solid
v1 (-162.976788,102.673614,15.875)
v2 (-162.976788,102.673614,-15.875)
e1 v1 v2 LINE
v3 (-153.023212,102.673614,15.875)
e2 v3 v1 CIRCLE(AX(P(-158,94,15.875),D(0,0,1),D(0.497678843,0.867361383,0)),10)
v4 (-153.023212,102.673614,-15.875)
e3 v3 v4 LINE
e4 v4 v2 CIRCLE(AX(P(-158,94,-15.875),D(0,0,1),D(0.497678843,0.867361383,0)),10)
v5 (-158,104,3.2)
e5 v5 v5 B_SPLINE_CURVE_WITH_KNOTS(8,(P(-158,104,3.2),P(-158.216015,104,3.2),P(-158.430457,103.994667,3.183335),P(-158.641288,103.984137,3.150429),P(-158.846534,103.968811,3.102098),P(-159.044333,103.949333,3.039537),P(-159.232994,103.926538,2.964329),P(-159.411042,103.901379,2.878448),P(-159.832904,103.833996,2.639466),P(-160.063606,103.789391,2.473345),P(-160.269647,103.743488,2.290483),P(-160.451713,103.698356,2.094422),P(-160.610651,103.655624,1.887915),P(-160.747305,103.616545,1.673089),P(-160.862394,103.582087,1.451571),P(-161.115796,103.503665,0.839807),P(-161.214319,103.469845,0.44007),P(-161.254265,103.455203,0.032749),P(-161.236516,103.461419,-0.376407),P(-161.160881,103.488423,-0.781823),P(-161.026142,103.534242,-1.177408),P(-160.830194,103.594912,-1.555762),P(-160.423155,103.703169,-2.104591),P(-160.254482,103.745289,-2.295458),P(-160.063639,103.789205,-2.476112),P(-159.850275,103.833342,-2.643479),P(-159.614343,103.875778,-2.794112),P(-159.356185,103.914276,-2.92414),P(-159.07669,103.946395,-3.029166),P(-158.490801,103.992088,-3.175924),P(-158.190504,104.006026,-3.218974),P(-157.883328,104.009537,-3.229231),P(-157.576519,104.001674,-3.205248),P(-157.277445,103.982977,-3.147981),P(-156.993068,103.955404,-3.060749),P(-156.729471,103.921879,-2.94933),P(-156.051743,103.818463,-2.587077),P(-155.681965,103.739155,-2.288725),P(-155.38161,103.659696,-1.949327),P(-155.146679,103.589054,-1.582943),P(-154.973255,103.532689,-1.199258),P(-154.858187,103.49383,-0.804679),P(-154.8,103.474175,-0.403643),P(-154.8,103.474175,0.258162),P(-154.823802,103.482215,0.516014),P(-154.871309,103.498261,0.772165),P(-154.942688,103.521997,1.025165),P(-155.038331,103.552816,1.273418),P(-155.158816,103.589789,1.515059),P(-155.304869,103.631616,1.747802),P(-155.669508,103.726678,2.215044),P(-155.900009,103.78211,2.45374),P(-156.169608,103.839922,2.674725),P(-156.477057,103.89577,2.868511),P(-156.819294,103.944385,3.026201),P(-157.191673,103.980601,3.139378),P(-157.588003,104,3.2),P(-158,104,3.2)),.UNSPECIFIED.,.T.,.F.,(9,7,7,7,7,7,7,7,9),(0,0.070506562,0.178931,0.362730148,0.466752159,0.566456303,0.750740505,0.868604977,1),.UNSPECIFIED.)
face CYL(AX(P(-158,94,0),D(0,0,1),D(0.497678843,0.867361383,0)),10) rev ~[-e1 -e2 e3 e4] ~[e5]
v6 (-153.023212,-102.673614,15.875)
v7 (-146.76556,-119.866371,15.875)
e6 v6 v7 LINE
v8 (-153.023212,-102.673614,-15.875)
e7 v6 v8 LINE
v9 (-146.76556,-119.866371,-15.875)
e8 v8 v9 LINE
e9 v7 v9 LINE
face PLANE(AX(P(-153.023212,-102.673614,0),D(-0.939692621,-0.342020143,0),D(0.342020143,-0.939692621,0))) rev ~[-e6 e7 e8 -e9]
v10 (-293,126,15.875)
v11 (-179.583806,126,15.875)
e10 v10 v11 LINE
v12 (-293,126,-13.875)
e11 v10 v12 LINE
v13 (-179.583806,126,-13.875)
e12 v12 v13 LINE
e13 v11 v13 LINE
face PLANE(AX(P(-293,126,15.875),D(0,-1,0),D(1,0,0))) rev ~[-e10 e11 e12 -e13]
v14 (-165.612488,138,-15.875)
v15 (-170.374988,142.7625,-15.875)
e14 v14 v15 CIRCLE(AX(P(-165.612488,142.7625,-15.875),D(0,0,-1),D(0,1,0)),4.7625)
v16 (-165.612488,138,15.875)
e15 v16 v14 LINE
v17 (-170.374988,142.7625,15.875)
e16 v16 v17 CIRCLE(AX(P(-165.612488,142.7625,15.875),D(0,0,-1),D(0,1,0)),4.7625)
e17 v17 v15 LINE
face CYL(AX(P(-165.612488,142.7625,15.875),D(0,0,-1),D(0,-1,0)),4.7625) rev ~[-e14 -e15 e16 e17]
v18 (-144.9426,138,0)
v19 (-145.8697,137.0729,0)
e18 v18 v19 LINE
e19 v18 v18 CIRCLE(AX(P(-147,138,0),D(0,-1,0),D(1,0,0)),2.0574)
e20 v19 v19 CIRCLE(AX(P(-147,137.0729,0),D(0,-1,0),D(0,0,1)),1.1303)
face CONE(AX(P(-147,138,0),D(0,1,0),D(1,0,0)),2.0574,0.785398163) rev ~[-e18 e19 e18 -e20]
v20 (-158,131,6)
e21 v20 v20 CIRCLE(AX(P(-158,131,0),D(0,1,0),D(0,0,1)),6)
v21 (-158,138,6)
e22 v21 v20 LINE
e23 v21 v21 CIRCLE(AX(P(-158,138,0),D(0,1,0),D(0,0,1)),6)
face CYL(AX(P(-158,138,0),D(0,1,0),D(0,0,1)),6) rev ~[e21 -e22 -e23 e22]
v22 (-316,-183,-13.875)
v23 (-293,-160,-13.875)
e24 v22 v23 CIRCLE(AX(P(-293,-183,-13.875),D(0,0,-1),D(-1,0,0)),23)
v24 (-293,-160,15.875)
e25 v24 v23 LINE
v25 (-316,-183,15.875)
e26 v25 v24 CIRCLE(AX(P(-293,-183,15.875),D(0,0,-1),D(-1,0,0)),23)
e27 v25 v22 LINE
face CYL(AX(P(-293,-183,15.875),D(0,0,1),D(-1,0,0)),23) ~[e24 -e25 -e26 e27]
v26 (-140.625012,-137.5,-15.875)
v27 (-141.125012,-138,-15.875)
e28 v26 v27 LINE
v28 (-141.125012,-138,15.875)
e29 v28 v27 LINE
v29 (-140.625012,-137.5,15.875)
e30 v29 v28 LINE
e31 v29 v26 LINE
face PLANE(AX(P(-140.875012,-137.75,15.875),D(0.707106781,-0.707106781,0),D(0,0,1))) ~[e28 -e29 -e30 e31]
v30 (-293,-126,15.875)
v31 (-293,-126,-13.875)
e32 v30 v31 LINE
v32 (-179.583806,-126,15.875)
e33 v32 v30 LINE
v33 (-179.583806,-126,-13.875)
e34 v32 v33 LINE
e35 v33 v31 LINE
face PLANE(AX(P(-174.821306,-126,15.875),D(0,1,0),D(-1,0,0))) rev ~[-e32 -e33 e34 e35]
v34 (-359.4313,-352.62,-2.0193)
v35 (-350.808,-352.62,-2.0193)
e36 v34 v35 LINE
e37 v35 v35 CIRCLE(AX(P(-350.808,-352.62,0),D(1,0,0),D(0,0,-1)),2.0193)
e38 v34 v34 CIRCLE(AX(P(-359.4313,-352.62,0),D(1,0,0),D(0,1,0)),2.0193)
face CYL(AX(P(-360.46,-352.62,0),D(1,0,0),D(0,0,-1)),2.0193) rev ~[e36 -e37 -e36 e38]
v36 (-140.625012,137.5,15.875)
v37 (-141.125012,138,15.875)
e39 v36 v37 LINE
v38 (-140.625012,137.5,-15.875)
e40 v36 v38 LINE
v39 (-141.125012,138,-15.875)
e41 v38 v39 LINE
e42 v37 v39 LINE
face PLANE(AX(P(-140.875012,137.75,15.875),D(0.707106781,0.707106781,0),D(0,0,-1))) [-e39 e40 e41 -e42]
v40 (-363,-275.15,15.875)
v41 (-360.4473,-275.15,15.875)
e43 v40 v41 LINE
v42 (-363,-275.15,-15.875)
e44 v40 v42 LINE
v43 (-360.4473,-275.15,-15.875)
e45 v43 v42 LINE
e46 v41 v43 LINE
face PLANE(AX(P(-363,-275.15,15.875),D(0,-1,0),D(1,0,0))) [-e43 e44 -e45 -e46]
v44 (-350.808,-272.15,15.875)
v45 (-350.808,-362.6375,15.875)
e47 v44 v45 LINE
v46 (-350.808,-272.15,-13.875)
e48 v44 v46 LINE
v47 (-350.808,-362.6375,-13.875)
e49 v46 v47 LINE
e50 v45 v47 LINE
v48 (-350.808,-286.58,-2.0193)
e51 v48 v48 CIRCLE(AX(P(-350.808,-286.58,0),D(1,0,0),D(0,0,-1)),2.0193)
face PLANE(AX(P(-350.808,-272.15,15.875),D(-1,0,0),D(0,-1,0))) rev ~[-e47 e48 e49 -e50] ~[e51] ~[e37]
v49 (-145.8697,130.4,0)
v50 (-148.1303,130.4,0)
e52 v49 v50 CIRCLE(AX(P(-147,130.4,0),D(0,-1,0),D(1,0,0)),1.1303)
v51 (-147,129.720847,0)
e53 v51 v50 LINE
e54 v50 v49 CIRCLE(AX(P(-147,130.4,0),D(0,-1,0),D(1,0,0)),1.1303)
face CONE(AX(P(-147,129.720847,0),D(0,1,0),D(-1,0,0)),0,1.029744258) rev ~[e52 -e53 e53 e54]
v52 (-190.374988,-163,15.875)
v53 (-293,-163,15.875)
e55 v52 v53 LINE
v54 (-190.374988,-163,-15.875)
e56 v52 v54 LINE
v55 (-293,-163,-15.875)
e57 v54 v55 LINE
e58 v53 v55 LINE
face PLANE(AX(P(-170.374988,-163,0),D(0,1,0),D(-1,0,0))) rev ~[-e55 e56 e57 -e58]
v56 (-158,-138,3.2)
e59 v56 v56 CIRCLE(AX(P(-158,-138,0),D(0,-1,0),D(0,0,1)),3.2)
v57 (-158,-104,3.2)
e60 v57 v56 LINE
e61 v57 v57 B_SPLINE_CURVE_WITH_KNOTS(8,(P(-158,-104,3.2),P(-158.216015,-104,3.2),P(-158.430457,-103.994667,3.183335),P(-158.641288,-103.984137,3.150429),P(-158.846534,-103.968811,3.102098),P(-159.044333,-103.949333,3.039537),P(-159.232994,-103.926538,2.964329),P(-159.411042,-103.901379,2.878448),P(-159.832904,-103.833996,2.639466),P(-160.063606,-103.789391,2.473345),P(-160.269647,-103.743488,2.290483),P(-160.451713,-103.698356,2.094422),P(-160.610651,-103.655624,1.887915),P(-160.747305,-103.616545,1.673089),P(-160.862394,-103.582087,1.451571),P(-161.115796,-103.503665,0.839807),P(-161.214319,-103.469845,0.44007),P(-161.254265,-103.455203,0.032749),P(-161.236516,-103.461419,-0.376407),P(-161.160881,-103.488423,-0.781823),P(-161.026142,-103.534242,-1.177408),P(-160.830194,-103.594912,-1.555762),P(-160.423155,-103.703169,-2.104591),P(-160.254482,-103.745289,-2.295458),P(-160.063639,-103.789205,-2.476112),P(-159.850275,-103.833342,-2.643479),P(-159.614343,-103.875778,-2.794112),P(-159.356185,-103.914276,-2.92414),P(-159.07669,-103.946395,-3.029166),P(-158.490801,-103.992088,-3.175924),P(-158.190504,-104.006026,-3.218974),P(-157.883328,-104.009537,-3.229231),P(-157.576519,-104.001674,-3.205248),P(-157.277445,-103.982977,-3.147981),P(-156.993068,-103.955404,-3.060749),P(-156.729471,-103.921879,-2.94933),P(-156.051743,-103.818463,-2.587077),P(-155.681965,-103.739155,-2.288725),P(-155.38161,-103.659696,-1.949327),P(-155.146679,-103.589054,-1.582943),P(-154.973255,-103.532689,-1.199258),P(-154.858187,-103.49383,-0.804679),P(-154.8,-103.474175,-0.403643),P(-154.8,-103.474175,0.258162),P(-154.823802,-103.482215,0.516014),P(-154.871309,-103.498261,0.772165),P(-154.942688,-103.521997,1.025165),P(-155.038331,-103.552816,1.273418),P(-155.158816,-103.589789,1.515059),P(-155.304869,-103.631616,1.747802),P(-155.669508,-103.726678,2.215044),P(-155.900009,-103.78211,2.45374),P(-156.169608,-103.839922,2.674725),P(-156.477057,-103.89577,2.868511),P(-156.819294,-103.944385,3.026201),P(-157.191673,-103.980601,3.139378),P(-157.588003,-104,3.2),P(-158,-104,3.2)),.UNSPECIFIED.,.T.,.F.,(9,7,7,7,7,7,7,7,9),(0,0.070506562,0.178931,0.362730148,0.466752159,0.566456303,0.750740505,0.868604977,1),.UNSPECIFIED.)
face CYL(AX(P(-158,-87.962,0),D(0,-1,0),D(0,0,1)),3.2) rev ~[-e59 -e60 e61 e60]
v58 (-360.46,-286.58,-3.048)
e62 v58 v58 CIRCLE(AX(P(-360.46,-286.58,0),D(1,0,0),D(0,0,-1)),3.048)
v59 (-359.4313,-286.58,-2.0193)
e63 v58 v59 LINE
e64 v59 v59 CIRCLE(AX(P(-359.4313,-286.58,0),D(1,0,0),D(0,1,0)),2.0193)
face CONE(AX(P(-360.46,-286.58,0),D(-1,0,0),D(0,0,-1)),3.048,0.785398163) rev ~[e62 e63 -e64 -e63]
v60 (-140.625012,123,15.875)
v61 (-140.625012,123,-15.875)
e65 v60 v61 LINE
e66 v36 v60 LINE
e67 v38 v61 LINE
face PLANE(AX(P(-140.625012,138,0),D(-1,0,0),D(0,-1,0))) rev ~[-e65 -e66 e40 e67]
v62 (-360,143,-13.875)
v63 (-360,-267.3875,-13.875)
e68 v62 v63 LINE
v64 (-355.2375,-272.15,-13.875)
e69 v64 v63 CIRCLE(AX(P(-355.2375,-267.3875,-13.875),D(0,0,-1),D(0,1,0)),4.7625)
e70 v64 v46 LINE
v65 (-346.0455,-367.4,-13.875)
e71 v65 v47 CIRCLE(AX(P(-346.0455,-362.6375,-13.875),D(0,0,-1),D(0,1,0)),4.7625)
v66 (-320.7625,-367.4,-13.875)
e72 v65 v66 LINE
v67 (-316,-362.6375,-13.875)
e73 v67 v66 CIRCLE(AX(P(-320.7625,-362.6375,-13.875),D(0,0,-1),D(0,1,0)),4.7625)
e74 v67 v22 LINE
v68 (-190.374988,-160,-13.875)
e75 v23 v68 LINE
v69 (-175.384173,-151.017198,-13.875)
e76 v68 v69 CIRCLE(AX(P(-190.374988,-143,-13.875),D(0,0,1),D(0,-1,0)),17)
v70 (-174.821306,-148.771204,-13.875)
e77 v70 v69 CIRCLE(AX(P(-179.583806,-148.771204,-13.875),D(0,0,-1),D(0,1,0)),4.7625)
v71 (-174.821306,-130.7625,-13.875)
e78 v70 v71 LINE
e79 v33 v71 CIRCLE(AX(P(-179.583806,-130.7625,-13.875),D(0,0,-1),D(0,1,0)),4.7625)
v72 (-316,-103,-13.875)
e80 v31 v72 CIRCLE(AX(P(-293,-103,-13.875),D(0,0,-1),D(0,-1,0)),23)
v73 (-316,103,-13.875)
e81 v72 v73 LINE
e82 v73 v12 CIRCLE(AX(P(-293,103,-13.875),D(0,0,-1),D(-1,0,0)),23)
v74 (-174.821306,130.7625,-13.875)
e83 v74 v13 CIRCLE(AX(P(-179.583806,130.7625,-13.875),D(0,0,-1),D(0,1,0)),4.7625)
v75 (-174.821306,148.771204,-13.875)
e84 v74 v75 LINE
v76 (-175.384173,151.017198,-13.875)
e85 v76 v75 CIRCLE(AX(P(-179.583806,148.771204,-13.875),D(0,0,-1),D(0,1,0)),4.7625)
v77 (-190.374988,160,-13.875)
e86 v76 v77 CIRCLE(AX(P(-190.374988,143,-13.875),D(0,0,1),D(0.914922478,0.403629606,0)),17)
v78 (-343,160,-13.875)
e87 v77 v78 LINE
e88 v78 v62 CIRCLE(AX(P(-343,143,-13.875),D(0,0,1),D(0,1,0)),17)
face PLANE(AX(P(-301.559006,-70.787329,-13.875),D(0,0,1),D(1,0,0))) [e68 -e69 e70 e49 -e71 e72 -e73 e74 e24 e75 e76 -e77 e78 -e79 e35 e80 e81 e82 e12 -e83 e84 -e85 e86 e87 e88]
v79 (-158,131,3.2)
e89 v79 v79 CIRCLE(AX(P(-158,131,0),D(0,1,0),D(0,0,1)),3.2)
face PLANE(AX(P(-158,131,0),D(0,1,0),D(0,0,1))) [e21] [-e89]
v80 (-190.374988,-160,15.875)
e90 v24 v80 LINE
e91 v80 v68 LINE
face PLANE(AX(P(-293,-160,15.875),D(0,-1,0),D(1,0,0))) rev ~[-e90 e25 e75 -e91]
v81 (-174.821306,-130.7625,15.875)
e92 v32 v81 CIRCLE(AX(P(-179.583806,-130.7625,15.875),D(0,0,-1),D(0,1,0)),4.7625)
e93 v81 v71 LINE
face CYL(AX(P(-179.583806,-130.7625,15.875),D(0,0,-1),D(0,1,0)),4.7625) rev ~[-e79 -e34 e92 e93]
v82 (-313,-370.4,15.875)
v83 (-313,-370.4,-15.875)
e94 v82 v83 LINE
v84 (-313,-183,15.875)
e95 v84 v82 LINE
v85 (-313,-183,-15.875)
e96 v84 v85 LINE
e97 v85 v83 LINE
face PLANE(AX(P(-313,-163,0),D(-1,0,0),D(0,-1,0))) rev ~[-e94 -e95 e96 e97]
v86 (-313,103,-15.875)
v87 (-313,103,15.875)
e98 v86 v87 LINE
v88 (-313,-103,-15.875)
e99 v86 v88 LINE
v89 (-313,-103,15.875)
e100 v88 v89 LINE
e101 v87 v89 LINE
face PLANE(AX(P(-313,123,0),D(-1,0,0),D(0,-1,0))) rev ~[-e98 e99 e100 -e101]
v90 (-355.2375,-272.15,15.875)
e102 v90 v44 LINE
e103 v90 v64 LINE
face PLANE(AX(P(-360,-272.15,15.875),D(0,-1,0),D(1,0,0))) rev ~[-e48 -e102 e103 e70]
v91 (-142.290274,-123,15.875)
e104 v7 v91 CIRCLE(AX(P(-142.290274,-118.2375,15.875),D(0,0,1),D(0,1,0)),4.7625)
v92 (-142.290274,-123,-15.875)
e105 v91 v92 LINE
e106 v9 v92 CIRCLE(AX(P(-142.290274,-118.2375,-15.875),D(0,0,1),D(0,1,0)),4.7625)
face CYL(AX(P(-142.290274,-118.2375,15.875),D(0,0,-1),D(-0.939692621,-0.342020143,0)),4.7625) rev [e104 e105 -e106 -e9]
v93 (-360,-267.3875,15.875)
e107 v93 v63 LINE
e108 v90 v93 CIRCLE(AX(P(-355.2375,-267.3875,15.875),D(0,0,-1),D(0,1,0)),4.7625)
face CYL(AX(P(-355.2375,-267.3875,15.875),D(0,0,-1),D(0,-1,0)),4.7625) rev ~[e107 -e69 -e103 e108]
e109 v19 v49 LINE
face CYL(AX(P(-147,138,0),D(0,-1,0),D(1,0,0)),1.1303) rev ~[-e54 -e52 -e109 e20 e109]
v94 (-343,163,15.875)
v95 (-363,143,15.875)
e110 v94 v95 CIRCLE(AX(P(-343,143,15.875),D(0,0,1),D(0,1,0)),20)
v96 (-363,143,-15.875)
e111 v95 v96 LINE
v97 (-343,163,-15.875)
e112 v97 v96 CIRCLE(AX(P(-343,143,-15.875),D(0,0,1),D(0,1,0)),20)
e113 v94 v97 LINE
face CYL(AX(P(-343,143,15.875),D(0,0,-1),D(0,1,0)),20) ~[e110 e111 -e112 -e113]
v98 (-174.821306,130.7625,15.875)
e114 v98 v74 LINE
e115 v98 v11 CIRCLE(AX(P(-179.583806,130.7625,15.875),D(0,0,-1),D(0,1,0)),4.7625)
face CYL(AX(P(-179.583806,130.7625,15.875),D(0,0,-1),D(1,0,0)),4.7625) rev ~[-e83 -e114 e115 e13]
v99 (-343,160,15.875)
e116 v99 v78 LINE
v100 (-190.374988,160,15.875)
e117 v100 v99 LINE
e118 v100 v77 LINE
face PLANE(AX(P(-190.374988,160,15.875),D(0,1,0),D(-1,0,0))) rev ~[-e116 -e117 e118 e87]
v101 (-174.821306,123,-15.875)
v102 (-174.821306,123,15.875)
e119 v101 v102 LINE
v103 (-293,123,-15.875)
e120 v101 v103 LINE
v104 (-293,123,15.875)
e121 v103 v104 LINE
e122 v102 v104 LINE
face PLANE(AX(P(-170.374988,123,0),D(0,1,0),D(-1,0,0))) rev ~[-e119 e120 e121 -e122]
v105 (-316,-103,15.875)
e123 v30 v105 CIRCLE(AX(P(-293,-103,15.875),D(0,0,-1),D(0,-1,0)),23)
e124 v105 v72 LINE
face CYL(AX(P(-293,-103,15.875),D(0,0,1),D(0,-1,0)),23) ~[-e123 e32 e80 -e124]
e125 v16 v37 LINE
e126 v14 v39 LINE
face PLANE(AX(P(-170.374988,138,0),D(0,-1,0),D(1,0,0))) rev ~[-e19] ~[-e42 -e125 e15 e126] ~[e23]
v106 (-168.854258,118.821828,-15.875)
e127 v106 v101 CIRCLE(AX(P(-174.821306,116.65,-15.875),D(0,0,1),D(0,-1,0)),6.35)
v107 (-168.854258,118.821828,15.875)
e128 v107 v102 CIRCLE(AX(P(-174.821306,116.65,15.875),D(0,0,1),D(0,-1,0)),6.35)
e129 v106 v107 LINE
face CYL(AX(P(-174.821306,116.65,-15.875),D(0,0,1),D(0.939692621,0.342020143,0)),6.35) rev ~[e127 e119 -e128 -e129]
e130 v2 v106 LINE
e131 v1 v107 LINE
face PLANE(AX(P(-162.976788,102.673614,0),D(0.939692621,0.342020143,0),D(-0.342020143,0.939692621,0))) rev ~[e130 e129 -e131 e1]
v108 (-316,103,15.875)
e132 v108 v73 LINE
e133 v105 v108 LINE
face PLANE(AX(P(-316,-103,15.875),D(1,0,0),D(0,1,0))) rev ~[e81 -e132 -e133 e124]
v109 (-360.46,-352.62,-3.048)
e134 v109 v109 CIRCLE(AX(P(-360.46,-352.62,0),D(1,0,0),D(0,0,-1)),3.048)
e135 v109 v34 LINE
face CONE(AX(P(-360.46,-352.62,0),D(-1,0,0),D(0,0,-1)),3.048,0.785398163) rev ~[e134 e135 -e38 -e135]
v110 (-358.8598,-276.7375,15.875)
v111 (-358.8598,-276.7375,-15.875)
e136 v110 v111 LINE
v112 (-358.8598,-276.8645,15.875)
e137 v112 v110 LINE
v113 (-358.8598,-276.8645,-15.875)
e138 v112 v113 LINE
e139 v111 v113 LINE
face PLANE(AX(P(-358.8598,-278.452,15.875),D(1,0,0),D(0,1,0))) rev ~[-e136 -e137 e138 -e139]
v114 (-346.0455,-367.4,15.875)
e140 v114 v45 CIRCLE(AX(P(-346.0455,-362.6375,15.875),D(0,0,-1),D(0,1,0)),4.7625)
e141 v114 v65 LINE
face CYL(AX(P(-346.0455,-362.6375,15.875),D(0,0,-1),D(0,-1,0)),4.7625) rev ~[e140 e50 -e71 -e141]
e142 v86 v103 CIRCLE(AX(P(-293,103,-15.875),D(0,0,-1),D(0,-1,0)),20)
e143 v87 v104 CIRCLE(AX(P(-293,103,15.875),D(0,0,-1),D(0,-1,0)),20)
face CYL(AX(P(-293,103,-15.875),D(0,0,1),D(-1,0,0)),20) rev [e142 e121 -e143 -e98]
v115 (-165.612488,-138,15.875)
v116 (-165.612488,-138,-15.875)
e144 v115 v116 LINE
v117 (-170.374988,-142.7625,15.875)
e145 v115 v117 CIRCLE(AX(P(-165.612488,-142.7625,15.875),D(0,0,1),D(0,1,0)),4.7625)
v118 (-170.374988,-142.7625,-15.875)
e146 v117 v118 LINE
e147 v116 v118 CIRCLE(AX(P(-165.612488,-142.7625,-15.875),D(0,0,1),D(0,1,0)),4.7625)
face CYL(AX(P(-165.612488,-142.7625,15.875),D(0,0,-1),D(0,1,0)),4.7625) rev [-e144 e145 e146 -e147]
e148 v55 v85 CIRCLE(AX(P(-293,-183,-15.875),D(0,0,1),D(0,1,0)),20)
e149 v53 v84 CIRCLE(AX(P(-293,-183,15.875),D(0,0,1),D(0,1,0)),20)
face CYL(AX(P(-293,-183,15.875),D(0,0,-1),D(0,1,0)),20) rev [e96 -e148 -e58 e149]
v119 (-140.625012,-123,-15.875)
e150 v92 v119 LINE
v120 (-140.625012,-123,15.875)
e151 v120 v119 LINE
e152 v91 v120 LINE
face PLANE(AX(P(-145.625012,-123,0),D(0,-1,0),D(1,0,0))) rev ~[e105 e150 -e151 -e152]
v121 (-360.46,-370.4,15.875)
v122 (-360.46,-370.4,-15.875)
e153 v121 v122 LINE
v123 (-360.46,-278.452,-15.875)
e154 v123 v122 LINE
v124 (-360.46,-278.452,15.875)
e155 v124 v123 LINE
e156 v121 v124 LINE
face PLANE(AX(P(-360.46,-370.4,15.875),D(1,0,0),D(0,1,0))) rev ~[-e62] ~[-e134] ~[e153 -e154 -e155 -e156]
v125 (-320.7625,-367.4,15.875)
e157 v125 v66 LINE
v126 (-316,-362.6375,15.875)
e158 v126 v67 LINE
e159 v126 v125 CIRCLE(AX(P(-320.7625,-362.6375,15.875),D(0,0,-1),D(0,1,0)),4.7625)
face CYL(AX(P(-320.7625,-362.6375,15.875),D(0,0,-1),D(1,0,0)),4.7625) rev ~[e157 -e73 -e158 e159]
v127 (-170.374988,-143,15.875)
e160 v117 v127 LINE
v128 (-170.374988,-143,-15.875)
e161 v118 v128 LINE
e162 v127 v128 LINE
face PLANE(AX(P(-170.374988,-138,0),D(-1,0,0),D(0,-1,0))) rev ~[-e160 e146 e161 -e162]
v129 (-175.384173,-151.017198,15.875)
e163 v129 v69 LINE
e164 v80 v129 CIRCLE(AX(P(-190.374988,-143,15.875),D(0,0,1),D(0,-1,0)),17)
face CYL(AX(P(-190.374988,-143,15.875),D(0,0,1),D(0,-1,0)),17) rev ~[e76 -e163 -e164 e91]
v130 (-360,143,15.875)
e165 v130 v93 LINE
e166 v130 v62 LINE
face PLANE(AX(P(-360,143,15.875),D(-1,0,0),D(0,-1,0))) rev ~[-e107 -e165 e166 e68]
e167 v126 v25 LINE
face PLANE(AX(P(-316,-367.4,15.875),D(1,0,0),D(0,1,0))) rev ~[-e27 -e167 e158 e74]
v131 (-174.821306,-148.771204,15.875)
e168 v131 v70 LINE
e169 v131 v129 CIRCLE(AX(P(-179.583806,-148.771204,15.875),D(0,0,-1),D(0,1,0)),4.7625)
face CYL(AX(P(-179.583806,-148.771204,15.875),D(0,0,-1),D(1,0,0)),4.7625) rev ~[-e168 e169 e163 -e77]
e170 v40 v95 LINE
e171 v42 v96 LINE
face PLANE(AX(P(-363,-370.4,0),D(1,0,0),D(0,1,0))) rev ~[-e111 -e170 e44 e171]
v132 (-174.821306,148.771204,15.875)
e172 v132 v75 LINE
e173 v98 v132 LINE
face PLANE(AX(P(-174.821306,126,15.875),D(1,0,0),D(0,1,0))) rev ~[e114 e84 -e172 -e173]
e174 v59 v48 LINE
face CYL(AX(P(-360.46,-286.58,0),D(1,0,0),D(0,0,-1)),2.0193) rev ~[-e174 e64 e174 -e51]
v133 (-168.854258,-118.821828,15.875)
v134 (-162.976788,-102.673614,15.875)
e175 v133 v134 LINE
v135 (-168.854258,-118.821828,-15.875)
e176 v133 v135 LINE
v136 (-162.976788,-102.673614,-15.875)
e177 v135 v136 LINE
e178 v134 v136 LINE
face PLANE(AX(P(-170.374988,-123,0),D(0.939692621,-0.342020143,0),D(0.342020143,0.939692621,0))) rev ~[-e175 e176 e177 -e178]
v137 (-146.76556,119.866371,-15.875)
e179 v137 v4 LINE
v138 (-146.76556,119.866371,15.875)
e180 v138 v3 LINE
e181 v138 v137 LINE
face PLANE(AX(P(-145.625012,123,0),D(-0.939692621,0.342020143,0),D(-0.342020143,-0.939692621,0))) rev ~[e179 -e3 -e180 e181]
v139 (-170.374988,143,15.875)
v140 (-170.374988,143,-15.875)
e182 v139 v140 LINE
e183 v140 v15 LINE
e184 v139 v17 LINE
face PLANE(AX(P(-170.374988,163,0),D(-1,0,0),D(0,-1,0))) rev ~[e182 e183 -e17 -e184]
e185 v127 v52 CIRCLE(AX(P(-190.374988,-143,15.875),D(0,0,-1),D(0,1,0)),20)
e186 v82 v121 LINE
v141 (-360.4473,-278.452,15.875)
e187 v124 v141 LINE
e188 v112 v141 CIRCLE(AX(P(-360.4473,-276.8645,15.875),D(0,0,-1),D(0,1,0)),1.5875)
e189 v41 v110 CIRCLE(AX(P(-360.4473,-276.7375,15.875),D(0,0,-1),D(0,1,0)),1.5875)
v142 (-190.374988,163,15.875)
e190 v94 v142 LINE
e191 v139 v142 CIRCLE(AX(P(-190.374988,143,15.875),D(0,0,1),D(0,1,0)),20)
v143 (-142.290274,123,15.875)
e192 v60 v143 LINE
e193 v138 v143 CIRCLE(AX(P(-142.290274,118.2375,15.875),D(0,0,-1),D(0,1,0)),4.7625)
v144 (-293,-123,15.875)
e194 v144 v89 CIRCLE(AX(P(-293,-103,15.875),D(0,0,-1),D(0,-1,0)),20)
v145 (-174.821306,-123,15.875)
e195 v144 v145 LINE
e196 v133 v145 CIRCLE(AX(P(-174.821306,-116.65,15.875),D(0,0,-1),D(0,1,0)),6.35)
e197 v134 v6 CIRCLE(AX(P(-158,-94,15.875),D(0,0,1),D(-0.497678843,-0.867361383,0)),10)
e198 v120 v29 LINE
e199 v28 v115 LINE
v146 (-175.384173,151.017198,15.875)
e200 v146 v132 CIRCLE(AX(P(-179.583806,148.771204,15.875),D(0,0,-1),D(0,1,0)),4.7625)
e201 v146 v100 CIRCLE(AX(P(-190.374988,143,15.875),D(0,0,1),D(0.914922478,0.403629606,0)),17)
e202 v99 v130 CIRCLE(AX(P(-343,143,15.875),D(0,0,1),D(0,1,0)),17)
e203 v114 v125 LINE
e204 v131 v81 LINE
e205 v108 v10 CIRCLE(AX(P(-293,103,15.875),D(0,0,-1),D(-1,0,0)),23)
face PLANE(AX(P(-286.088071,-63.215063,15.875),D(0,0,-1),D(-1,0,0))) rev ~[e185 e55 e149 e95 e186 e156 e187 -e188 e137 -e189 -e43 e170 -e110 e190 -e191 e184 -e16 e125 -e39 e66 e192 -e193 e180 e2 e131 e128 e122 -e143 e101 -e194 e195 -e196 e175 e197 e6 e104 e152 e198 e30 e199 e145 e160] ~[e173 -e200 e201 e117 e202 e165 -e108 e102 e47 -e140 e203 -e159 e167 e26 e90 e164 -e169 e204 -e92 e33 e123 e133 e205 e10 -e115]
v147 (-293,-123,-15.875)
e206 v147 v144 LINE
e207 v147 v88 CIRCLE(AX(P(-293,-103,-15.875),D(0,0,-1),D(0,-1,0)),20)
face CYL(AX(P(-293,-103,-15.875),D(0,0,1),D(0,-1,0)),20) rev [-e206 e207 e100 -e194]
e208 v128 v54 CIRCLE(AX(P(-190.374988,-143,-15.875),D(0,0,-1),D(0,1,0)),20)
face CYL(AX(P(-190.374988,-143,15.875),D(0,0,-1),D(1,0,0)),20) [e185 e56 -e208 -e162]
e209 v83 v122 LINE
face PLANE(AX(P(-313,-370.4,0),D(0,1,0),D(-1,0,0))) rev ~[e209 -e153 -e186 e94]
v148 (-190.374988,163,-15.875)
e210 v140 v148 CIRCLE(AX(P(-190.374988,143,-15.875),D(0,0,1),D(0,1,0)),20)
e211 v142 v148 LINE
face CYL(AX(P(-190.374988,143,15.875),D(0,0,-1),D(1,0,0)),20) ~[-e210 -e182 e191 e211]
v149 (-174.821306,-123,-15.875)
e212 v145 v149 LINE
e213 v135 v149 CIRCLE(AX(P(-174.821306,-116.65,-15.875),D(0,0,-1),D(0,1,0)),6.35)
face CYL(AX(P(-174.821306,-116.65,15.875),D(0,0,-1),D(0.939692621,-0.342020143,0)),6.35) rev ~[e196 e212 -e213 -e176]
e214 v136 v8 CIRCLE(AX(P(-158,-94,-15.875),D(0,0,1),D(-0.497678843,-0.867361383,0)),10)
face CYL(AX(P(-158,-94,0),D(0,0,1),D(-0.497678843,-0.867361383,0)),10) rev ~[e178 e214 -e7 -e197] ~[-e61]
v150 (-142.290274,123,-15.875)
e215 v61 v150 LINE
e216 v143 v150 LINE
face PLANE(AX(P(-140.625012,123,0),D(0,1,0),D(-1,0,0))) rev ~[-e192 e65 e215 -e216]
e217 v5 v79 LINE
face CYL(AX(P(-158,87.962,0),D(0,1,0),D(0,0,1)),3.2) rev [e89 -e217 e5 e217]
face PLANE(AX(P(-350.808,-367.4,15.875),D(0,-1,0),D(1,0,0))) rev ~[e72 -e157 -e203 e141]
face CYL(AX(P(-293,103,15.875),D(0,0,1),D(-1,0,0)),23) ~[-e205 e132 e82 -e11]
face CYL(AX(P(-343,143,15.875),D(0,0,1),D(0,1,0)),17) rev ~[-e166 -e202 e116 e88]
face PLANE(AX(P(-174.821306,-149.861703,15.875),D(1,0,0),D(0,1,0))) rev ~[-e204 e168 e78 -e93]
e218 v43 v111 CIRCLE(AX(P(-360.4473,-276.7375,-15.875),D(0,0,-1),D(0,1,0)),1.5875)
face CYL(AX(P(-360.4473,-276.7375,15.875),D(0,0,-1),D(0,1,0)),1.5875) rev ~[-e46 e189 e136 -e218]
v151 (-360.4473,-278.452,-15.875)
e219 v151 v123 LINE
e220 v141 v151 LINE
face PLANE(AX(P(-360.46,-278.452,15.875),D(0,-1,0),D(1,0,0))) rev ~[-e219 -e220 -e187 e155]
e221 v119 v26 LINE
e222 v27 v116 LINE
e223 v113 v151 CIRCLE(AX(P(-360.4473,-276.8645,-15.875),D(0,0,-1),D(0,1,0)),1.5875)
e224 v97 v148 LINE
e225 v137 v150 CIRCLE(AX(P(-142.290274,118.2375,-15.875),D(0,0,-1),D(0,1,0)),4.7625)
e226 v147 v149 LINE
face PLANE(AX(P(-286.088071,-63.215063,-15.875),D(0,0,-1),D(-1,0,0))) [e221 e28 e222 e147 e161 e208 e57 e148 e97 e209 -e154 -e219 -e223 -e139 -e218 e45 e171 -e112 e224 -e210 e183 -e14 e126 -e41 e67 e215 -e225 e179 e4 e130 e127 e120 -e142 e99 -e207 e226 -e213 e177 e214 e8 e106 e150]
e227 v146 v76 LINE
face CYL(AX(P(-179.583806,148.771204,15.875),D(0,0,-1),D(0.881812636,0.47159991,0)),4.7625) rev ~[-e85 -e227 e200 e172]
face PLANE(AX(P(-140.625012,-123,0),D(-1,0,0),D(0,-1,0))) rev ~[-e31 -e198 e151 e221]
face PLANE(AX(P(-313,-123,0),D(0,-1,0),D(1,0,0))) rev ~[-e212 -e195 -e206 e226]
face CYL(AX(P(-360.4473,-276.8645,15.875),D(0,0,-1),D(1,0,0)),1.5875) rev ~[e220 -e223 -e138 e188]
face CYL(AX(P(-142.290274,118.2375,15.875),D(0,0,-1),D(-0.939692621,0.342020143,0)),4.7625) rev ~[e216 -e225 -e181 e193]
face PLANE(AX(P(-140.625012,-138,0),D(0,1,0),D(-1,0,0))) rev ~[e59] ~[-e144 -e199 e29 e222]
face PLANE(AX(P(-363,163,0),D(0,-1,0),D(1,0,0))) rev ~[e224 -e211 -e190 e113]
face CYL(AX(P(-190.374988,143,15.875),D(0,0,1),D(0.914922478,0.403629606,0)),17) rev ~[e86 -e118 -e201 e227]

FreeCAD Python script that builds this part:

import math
import FreeCAD as App
import Part
import Sketcher

V = App.Vector
Q = App.Units.Quantity


def edges_at(feature, points):
    """Names of the edges that pass closest to the given points."""
    edges = feature.Shape.Edges
    near = lambda p: min(range(len(edges)), key=lambda i: edges[i].distToShape(Part.Vertex(*p))[0])
    return sorted({f"Edge{near(p) + 1}" for p in points})

doc = App.newDocument("Part")
params = doc.addObject("Spreadsheet::Sheet", "Params")
for row, (alias, value) in enumerate([
    ("sketch1_radius", "10 mm"),
    ("sketch1_width", "5 mm"),
    ("sketch1_width2", "50 mm"),
    ("sketch1_height", "246 mm"),
    ("sketch1_height2", "15 mm"),
    ("pad1_length", "31.75 mm"),
    ("sketch2_width", "2.54 mm"),
    ("sketch2_height", "95.25 mm"),
    ("fillet_radius", "1.5875 mm"),
    ("fillet2_radius", "6.35 mm"),
    ("fillet3_radius", "20 mm"),
    ("fillet4_radius", "4.7625 mm"),
    ("sketch4_height", "3.2 mm"),
    ("groove_angle", "360 deg"),
    ("sketch5_diameter", "12 mm"),
    ("pocket3_length", "7 mm"),
    ("hole_diameter", "2.2606 mm"),
    ("hole_depth", "7.6 mm"),
    ("hole_csink_diameter", "4.1148 mm"),
    ("chamfer_size", "0.5 mm"),
    ("hole2_diameter", "4.0386 mm"),
    ("hole2_depth", "12.03 mm"),
    ("hole2_csink_diameter", "6.096 mm"),
    ("sketch8_radius", "17 mm"),
    ("sketch8_radius2", "23 mm"),
    ("sketch8_height", "206 mm"),
    ("sketch8_height2", "184.4 mm"),
    ("sketch8_height3", "415.15 mm"),
    ("pocket4_length", "29.75 mm"),
    ("fillet5_radius", "4.7625 mm"),
], start=1):
    params.set(f"A{row}", alias)
    params.set(f"B{row}", "=" + value)
    params.setAlias(f"B{row}", alias)

body = doc.addObject("PartDesign::Body", "Body")

# Sketch on XY plane
sketch1 = body.newObject("Sketcher::SketchObject", "Sketch")
sketch1.AttachmentSupport = (doc.getObject("XY_Plane"), [""])
sketch1.MapMode = "FlatFace"
sketch1.addGeometry(Part.LineSegment(V(-170, -123, 0), V(-313, -123, 0)), False)
sketch1.addGeometry(Part.LineSegment(V(-313, -123, 0), V(-313, 123, 0)), False)
sketch1.addGeometry(Part.LineSegment(V(-313, 123, 0), V(-170, 123, 0)), False)
sketch1.addGeometry(Part.LineSegment(V(-170, 123, 0), V(-163, 103, 0)), False)
sketch1.addGeometry(Part.ArcOfCircle(Part.Circle(V(-158, 94, 0), V(0, 0, 1), 10), math.radians(60), math.radians(120)), False)
sketch1.addGeometry(Part.LineSegment(V(-153, 103, 0), V(-146, 123, 0)), False)
sketch1.addGeometry(Part.LineSegment(V(-146, 123, 0), V(-141, 123, 0)), False)
sketch1.addGeometry(Part.LineSegment(V(-141, 123, 0), V(-141, 138, 0)), False)
sketch1.addGeometry(Part.LineSegment(V(-141, 138, 0), V(-170, 138, 0)), False)
sketch1.addGeometry(Part.LineSegment(V(-170, 138, 0), V(-170, 163, 0)), False)
sketch1.addGeometry(Part.LineSegment(V(-170, 163, 0), V(-363, 163, 0)), False)
sketch1.addGeometry(Part.LineSegment(V(-363, 163, 0), V(-363, -370, 0)), False)
sketch1.addGeometry(Part.LineSegment(V(-363, -370, 0), V(-313, -370, 0)), False)
sketch1.addGeometry(Part.LineSegment(V(-313, -370, 0), V(-313, -163, 0)), False)
sketch1.addGeometry(Part.LineSegment(V(-313, -163, 0), V(-170, -163, 0)), False)
sketch1.addGeometry(Part.LineSegment(V(-170, -163, 0), V(-170, -138, 0)), False)
sketch1.addGeometry(Part.LineSegment(V(-170, -138, 0), V(-141, -138, 0)), False)
sketch1.addGeometry(Part.LineSegment(V(-141, -138, 0), V(-141, -123, 0)), False)
sketch1.addGeometry(Part.LineSegment(V(-141, -123, 0), V(-146, -123, 0)), False)
sketch1.addGeometry(Part.LineSegment(V(-146, -123, 0), V(-153, -103, 0)), False)
sketch1.addGeometry(Part.ArcOfCircle(Part.Circle(V(-158, -94, 0), V(0, 0, 1), 10), math.radians(-120), math.radians(-60)), False)
sketch1.addGeometry(Part.LineSegment(V(-163, -103, 0), V(-170, -123, 0)), False)
sketch1.addConstraint(Sketcher.Constraint("Coincident", 0, 2, 1, 1))
sketch1.addConstraint(Sketcher.Constraint("Coincident", 1, 2, 2, 1))
sketch1.addConstraint(Sketcher.Constraint("Coincident", 2, 2, 3, 1))
sketch1.addConstraint(Sketcher.Constraint("Coincident", 3, 2, 4, 2))
sketch1.addConstraint(Sketcher.Constraint("Coincident", 4, 1, 5, 1))
sketch1.addConstraint(Sketcher.Constraint("Coincident", 5, 2, 6, 1))
sketch1.addConstraint(Sketcher.Constraint("Coincident", 6, 2, 7, 1))
sketch1.addConstraint(Sketcher.Constraint("Coincident", 7, 2, 8, 1))
sketch1.addConstraint(Sketcher.Constraint("Coincident", 8, 2, 9, 1))
sketch1.addConstraint(Sketcher.Constraint("Coincident", 9, 2, 10, 1))
sketch1.addConstraint(Sketcher.Constraint("Coincident", 10, 2, 11, 1))
sketch1.addConstraint(Sketcher.Constraint("Coincident", 11, 2, 12, 1))
sketch1.addConstraint(Sketcher.Constraint("Coincident", 12, 2, 13, 1))
sketch1.addConstraint(Sketcher.Constraint("Coincident", 13, 2, 14, 1))
sketch1.addConstraint(Sketcher.Constraint("Coincident", 14, 2, 15, 1))
sketch1.addConstraint(Sketcher.Constraint("Coincident", 15, 2, 16, 1))
sketch1.addConstraint(Sketcher.Constraint("Coincident", 16, 2, 17, 1))
sketch1.addConstraint(Sketcher.Constraint("Coincident", 17, 2, 18, 1))
sketch1.addConstraint(Sketcher.Constraint("Coincident", 18, 2, 19, 1))
sketch1.addConstraint(Sketcher.Constraint("Coincident", 19, 2, 20, 2))
sketch1.addConstraint(Sketcher.Constraint("Coincident", 20, 1, 21, 1))
sketch1.addConstraint(Sketcher.Constraint("Coincident", 21, 2, 0, 1))
sketch1.addConstraint(Sketcher.Constraint("Horizontal", 0))
sketch1.addConstraint(Sketcher.Constraint("Vertical", 1))
sketch1.addConstraint(Sketcher.Constraint("Horizontal", 2))
sketch1.addConstraint(Sketcher.Constraint("Horizontal", 6))
sketch1.addConstraint(Sketcher.Constraint("Vertical", 7))
sketch1.addConstraint(Sketcher.Constraint("Horizontal", 8))
sketch1.addConstraint(Sketcher.Constraint("Vertical", 9))
sketch1.addConstraint(Sketcher.Constraint("Horizontal", 10))
sketch1.addConstraint(Sketcher.Constraint("Vertical", 11))
sketch1.addConstraint(Sketcher.Constraint("Horizontal", 12))
sketch1.addConstraint(Sketcher.Constraint("Vertical", 13))
sketch1.addConstraint(Sketcher.Constraint("Horizontal", 14))
sketch1.addConstraint(Sketcher.Constraint("Vertical", 15))
sketch1.addConstraint(Sketcher.Constraint("Horizontal", 16))
sketch1.addConstraint(Sketcher.Constraint("Vertical", 17))
sketch1.addConstraint(Sketcher.Constraint("Horizontal", 18))
sketch1.addConstraint(Sketcher.Constraint("Equal", 4, 20))
sketch1.addConstraint(Sketcher.Constraint("Symmetric", 4, 3, 20, 3, -1))
sketch1.addConstraint(Sketcher.Constraint("Symmetric", 9, 2, 14, 2, -1))
sketch1.addConstraint(Sketcher.Constraint("Symmetric", 7, 2, 16, 2, -1))
sketch1.addConstraint(Sketcher.Constraint("Symmetric", 5, 2, 18, 2, -1))
sketch1.addConstraint(Sketcher.Constraint("Symmetric", 2, 2, 21, 2, -1))
sketch1.addConstraint(Sketcher.Constraint("Parallel", 3, 19))
sketch1.addConstraint(Sketcher.Constraint("Parallel", 5, 21))
sketch1.addConstraint(Sketcher.Constraint("Horizontal", 3, 2, 4, 1))
sketch1.addConstraint(Sketcher.Constraint("Horizontal", 2, 2, 5, 2))
sketch1.addConstraint(Sketcher.Constraint("Horizontal", 19, 2, 20, 1))
sketch1.addConstraint(Sketcher.Constraint("Vertical", 2, 2, 8, 2))
sketch1.addConstraint(Sketcher.Constraint("Vertical", 1, 2, 12, 2))
sketch1.addConstraint(Sketcher.Constraint("Radius", 4, 10.0))
sketch1.addConstraint(Sketcher.Constraint("DistanceX", 6, 1, 6, 2, 5.0))
sketch1.addConstraint(Sketcher.Constraint("DistanceX", 12, 1, 12, 2, 50.0))
sketch1.addConstraint(Sketcher.Constraint("DistanceY", 1, 1, 1, 2, 246.0))
sketch1.addConstraint(Sketcher.Constraint("DistanceY", 7, 1, 7, 2, 15.0))
sketch1.addConstraint(Sketcher.Constraint("DistanceY", 9, 1, 9, 2, 25.0))
sketch1.addConstraint(Sketcher.Constraint("Angle", 3, Q("-70 deg")))
sketch1.addConstraint(Sketcher.Constraint("DistanceY", 11, 2, 11, 1, 533.4))
sketch1.addConstraint(Sketcher.Constraint("DistanceX", 4, 3, -1, 1, 158.0))
sketch1.addConstraint(Sketcher.Constraint("DistanceY", -1, 1, 4, 3, 94.0))
sketch1.addConstraint(Sketcher.Constraint("DistanceX", 0, 2, -1, 1, 313.0))
sketch1.addConstraint(Sketcher.Constraint("DistanceX", 2, 2, 3, 2, 7.3982))
sketch1.setExpression("Constraints[51]", "Params.sketch1_radius")
sketch1.setExpression("Constraints[52]", "Params.sketch1_width")
sketch1.setExpression("Constraints[53]", "Params.sketch1_width2")
sketch1.setExpression("Constraints[54]", "Params.sketch1_height")
sketch1.setExpression("Constraints[55]", "Params.sketch1_height2")
pad1 = body.newObject("PartDesign::Pad", "Pad")
pad1.Profile = sketch1
pad1.setExpression("Length", "Params.pad1_length")
pad1.Midplane = True

# Sketch on XY plane
sketch2 = body.newObject("Sketcher::SketchObject", "Sketch001")
sketch2.AttachmentSupport = (doc.getObject("XY_Plane"), [""])
sketch2.MapMode = "FlatFace"
sketch2.AttachmentOffset = App.Placement(V(0, 0, 15.875), App.Rotation())
sketch2.addGeometry(Part.LineSegment(V(-363, -275.1, 0), V(-363, -370.4, 0)), False)
sketch2.addGeometry(Part.LineSegment(V(-363, -370.4, 0), V(-360.5, -370.4, 0)), False)
sketch2.addGeometry(Part.LineSegment(V(-360.5, -370.4, 0), V(-360.5, -275.1, 0)), False)
sketch2.addGeometry(Part.LineSegment(V(-360.5, -275.1, 0), V(-363, -275.1, 0)), False)
sketch2.addConstraint(Sketcher.Constraint("Coincident", 0, 2, 1, 1))
sketch2.addConstraint(Sketcher.Constraint("Coincident", 1, 2, 2, 1))
sketch2.addConstraint(Sketcher.Constraint("Coincident", 2, 2, 3, 1))
sketch2.addConstraint(Sketcher.Constraint("Coincident", 3, 2, 0, 1))
sketch2.addConstraint(Sketcher.Constraint("Vertical", 0))
sketch2.addConstraint(Sketcher.Constraint("Horizontal", 1))
sketch2.addConstraint(Sketcher.Constraint("Vertical", 2))
sketch2.addConstraint(Sketcher.Constraint("Horizontal", 3))
sketch2.addConstraint(Sketcher.Constraint("DistanceX", 0, 2, -1, 1, 363.0))
sketch2.addConstraint(Sketcher.Constraint("DistanceX", 1, 1, 1, 2, 2.54))
sketch2.addConstraint(Sketcher.Constraint("DistanceY", 0, 2, 0, 1, 95.25))
sketch2.addConstraint(Sketcher.Constraint("DistanceY", 0, 2, -1, 1, 370.4))
sketch2.setExpression("Constraints[9]", "Params.sketch2_width")
sketch2.setExpression("Constraints[10]", "Params.sketch2_height")
pocket1 = body.newObject("PartDesign::Pocket", "Pocket")
pocket1.Profile = sketch2
pocket1.Type = "ThroughAll"

# Sketch on XY plane
sketch3 = body.newObject("Sketcher::SketchObject", "Sketch002")
sketch3.AttachmentSupport = (doc.getObject("XY_Plane"), [""])
sketch3.MapMode = "FlatFace"
sketch3.AttachmentOffset = App.Placement(V(0, 0, 15.875), App.Rotation())
sketch3.addGeometry(Part.LineSegment(V(-360.5, -275.1, 0), V(-360.5, -278.5, 0)), False)
sketch3.addGeometry(Part.LineSegment(V(-360.5, -278.5, 0), V(-358.9, -278.5, 0)), False)
sketch3.addGeometry(Part.LineSegment(V(-358.9, -278.5, 0), V(-358.9, -275.1, 0)), False)
sketch3.addGeometry(Part.LineSegment(V(-358.9, -275.1, 0), V(-360.5, -275.1, 0)), False)
sketch3.addConstraint(Sketcher.Constraint("Coincident", 0, 2, 1, 1))
sketch3.addConstraint(Sketcher.Constraint("Coincident", 1, 2, 2, 1))
sketch3.addConstraint(Sketcher.Constraint("Coincident", 2, 2, 3, 1))
sketch3.addConstraint(Sketcher.Constraint("Coincident", 3, 2, 0, 1))
sketch3.addConstraint(Sketcher.Constraint("Vertical", 0))
sketch3.addConstraint(Sketcher.Constraint("Horizontal", 1))
sketch3.addConstraint(Sketcher.Constraint("Vertical", 2))
sketch3.addConstraint(Sketcher.Constraint("Horizontal", 3))
sketch3.addConstraint(Sketcher.Constraint("DistanceY", 0, 2, 0, 1, 3.302))
sketch3.addConstraint(Sketcher.Constraint("DistanceX", 0, 2, -1, 1, 360.46))
sketch3.addConstraint(Sketcher.Constraint("DistanceY", 2, 2, -1, 1, 275.15))
sketch3.addConstraint(Sketcher.Constraint("DistanceX", 1, 1, 1, 2, 1.6002))
pocket2 = body.newObject("PartDesign::Pocket", "Pocket001")
pocket2.Profile = sketch3
pocket2.Type = "ThroughAll"
doc.recompute()

fillet = body.newObject("PartDesign::Fillet", "Fillet")
fillet.Base = (pocket2, edges_at(pocket2, [(-358.86, -275.15, 0), (-358.86, -278.452, 0)]))
fillet.setExpression("Radius", "Params.fillet_radius")
doc.recompute()

fillet2 = body.newObject("PartDesign::Fillet", "Fillet001")
fillet2.Base = (fillet, edges_at(fillet, [(-170.375, -123, 0), (-170.375, 123, 0)]))
fillet2.setExpression("Radius", "Params.fillet2_radius")
doc.recompute()

fillet3 = body.newObject("PartDesign::Fillet", "Fillet002")
fillet3.Base = (fillet2, edges_at(fillet2, [
    (-313, 123, 0),
    (-313, -123, 0),
    (-170.375, -163, 0),
    (-313, -163, 0),
    (-363, 163, 0),
    (-170.375, 163, 0),
]))
fillet3.setExpression("Radius", "Params.fillet3_radius")
doc.recompute()

fillet4 = body.newObject("PartDesign::Fillet", "Fillet003")
fillet4.Base = (fillet3, edges_at(fillet3, [
    (-145.625, -123, 0),
    (-170.375, -138, 0),
    (-170.375, 138, 0),
    (-145.625, 123, 0),
]))
fillet4.setExpression("Radius", "Params.fillet4_radius")

# Sketch on YZ plane
sketch4 = body.newObject("Sketcher::SketchObject", "Sketch003")
sketch4.AttachmentSupport = (doc.getObject("YZ_Plane"), [""])
sketch4.MapMode = "FlatFace"
sketch4.AttachmentOffset = App.Placement(V(0, 0, -158), App.Rotation())
sketch4.addGeometry(Part.LineSegment(V(86, 0, 0), V(138, 0, 0)), False)
sketch4.addGeometry(Part.LineSegment(V(138, 0, 0), V(138, 3.2, 0)), False)
sketch4.addGeometry(Part.LineSegment(V(138, 3.2, 0), V(88, 3.2, 0)), False)
sketch4.addGeometry(Part.LineSegment(V(88, 3.2, 0), V(86, 0, 0)), False)
sketch4.addConstraint(Sketcher.Constraint("Coincident", 0, 2, 1, 1))
sketch4.addConstraint(Sketcher.Constraint("Coincident", 1, 2, 2, 1))
sketch4.addConstraint(Sketcher.Constraint("Coincident", 2, 2, 3, 1))
sketch4.addConstraint(Sketcher.Constraint("Coincident", 3, 2, 0, 1))
sketch4.addConstraint(Sketcher.Constraint("Horizontal", 0))
sketch4.addConstraint(Sketcher.Constraint("Vertical", 1))
sketch4.addConstraint(Sketcher.Constraint("Horizontal", 2))
sketch4.addConstraint(Sketcher.Constraint("PointOnObject", 0, 2, -1))
sketch4.addConstraint(Sketcher.Constraint("Angle", 3, Q("-121 deg")))
sketch4.addConstraint(Sketcher.Constraint("DistanceY", 1, 1, 1, 2, 3.2))
sketch4.addConstraint(Sketcher.Constraint("DistanceX", -1, 1, 0, 2, 138.0))
sketch4.addConstraint(Sketcher.Constraint("DistanceX", 2, 2, 2, 1, 50.038))
sketch4.setExpression("Constraints[9]", "Params.sketch4_height")
groove = body.newObject("PartDesign::Groove", "Groove")
groove.Profile = sketch4
groove.ReferenceAxis = (sketch4, ["H_Axis"])
groove.setExpression("Angle", "Params.groove_angle")

# Sketch on XZ plane
sketch5 = body.newObject("Sketcher::SketchObject", "Sketch004")
sketch5.AttachmentSupport = (doc.getObject("XZ_Plane"), [""])
sketch5.MapMode = "FlatFace"
sketch5.AttachmentOffset = App.Placement(V(0, 0, -138), App.Rotation())
sketch5.addGeometry(Part.Circle(V(-158, 0, 0), V(0, 0, 1), 6), False)
sketch5.addConstraint(Sketcher.Constraint("PointOnObject", 0, 3, -1))
sketch5.addConstraint(Sketcher.Constraint("Diameter", 0, 12.0))
sketch5.addConstraint(Sketcher.Constraint("DistanceX", 0, 3, -1, 1, 158.0))
sketch5.setExpression("Constraints[1]", "Params.sketch5_diameter")
pocket3 = body.newObject("PartDesign::Pocket", "Pocket002")
pocket3.Profile = sketch5
pocket3.setExpression("Length", "Params.pocket3_length")
pocket3.Reversed = True

# Sketch on XZ plane
sketch6 = body.newObject("Sketcher::SketchObject", "Sketch005")
sketch6.AttachmentSupport = (doc.getObject("XZ_Plane"), [""])
sketch6.MapMode = "FlatFace"
sketch6.AttachmentOffset = App.Placement(V(0, 0, -138), App.Rotation())
sketch6.addGeometry(Part.Circle(V(-147, 0, 0), V(0, 0, 1), 1.1), False)
sketch6.addConstraint(Sketcher.Constraint("PointOnObject", 0, 3, -1))
sketch6.addConstraint(Sketcher.Constraint("DistanceX", 0, 3, -1, 1, 147.0))
sketch6.addConstraint(Sketcher.Constraint("Diameter", 0, 2.2606))
doc.recompute()
hole = body.newObject("PartDesign::Hole", "Hole")
hole.Profile = sketch6
hole.ThreadType = "None"
hole.setExpression("Diameter", "Params.hole_diameter")
hole.DepthType = "Dimension"
hole.setExpression("Depth", "Params.hole_depth")
hole.DrillPoint = "Angled"
hole.DrillPointAngle = 118
hole.HoleCutType = "Countersink"
hole.setExpression("HoleCutDiameter", "Params.hole_csink_diameter")
hole.HoleCutCountersinkAngle = 90
hole.Reversed = True
doc.recompute()

mirrored = body.newObject("PartDesign::Mirrored", "Mirrored")
mirrored.Originals = [groove]
mirrored.MirrorPlane = (doc.getObject("XZ_Plane"), [""])
body.Tip = mirrored
doc.recompute()

chamfer = body.newObject("PartDesign::Chamfer", "Chamfer")
chamfer.Base = (mirrored, edges_at(mirrored, [(-140.625, -138, 0), (-140.625, 138, 0)]))
chamfer.setExpression("Size", "Params.chamfer_size")

# Sketch on YZ plane
sketch7 = body.newObject("Sketcher::SketchObject", "Sketch006")
sketch7.AttachmentSupport = (doc.getObject("YZ_Plane"), [""])
sketch7.MapMode = "FlatFace"
sketch7.AttachmentOffset = App.Placement(V(0, 0, -360.46), App.Rotation())
sketch7.addGeometry(Part.Circle(V(-286.6, 0, 0), V(0, 0, 1), 2), False)
sketch7.addGeometry(Part.Circle(V(-352.6, 0, 0), V(0, 0, 1), 2), False)
sketch7.addConstraint(Sketcher.Constraint("Equal", 0, 1))
sketch7.addConstraint(Sketcher.Constraint("PointOnObject", 0, 3, -1))
sketch7.addConstraint(Sketcher.Constraint("PointOnObject", 1, 3, -1))
sketch7.addConstraint(Sketcher.Constraint("Diameter", 0, 4.0386))
sketch7.addConstraint(Sketcher.Constraint("DistanceX", 0, 3, -1, 1, 286.58))
sketch7.addConstraint(Sketcher.Constraint("DistanceX", 1, 3, -1, 1, 352.62))
doc.recompute()
hole2 = body.newObject("PartDesign::Hole", "Hole001")
hole2.Profile = sketch7
hole2.ThreadType = "None"
hole2.setExpression("Diameter", "Params.hole2_diameter")
hole2.DepthType = "Dimension"
hole2.setExpression("Depth", "Params.hole2_depth")
hole2.DrillPoint = "Angled"
hole2.DrillPointAngle = 118
hole2.HoleCutType = "Countersink"
hole2.setExpression("HoleCutDiameter", "Params.hole2_csink_diameter")
hole2.HoleCutCountersinkAngle = 90
hole2.Reversed = True

# Sketch on XY plane
sketch8 = body.newObject("Sketcher::SketchObject", "Sketch007")
sketch8.AttachmentSupport = (doc.getObject("XY_Plane"), [""])
sketch8.MapMode = "FlatFace"
sketch8.AttachmentOffset = App.Placement(V(0, 0, 15.875), App.Rotation())
sketch8.addGeometry(Part.LineSegment(V(-190, 160, 0), V(-343, 160, 0)), False)
sketch8.addGeometry(Part.ArcOfCircle(Part.Circle(V(-343, 143, 0), V(0, 0, 1), 17), math.radians(90), math.radians(180)), False)
sketch8.addGeometry(Part.LineSegment(V(-360, 143, 0), V(-360, -272, 0)), False)
sketch8.addGeometry(Part.LineSegment(V(-360, -272, 0), V(-351, -272, 0)), False)
sketch8.addGeometry(Part.LineSegment(V(-351, -272, 0), V(-351, -367, 0)), False)
sketch8.addGeometry(Part.LineSegment(V(-351, -367, 0), V(-316, -367, 0)), False)
sketch8.addGeometry(Part.LineSegment(V(-316, -367, 0), V(-316, -183, 0)), False)
sketch8.addGeometry(Part.ArcOfCircle(Part.Circle(V(-293, -183, 0), V(0, 0, 1), 23), math.radians(90), math.radians(180)), False)
sketch8.addGeometry(Part.LineSegment(V(-293, -160, 0), V(-190, -160, 0)), False)
sketch8.addGeometry(Part.ArcOfCircle(Part.Circle(V(-190, -143, 0), V(0, 0, 1), 17), math.radians(-90), math.radians(-24)), False)
sketch8.addGeometry(Part.LineSegment(V(-175, -150, 0), V(-175, -126, 0)), False)
sketch8.addGeometry(Part.LineSegment(V(-175, -126, 0), V(-293, -126, 0)), False)
sketch8.addGeometry(Part.ArcOfCircle(Part.Circle(V(-293, -103, 0), V(0, 0, 1), 23), math.radians(-180), math.radians(-90)), False)
sketch8.addGeometry(Part.LineSegment(V(-316, -103, 0), V(-316, 103, 0)), False)
sketch8.addGeometry(Part.ArcOfCircle(Part.Circle(V(-293, 103, 0), V(0, 0, 1), 23), math.radians(90), math.radians(180)), False)
sketch8.addGeometry(Part.LineSegment(V(-293, 126, 0), V(-175, 126, 0)), False)
sketch8.addGeometry(Part.LineSegment(V(-175, 126, 0), V(-175, 150, 0)), False)
sketch8.addGeometry(Part.ArcOfCircle(Part.Circle(V(-190, 143, 0), V(0, 0, 1), 17), math.radians(24), math.radians(90)), False)
sketch8.addConstraint(Sketcher.Constraint("Tangent", 0, 2, 1, 1))
sketch8.addConstraint(Sketcher.Constraint("Tangent", 1, 2, 2, 1))
sketch8.addConstraint(Sketcher.Constraint("Coincident", 2, 2, 3, 1))
sketch8.addConstraint(Sketcher.Constraint("Coincident", 3, 2, 4, 1))
sketch8.addConstraint(Sketcher.Constraint("Coincident", 4, 2, 5, 1))
sketch8.addConstraint(Sketcher.Constraint("Coincident", 5, 2, 6, 1))
sketch8.addConstraint(Sketcher.Constraint("Tangent", 6, 2, 7, 2))
sketch8.addConstraint(Sketcher.Constraint("Tangent", 7, 1, 8, 1))
sketch8.addConstraint(Sketcher.Constraint("Tangent", 8, 2, 9, 1))
sketch8.addConstraint(Sketcher.Constraint("Coincident", 9, 2, 10, 1))
sketch8.addConstraint(Sketcher.Constraint("Coincident", 10, 2, 11, 1))
sketch8.addConstraint(Sketcher.Constraint("Tangent", 11, 2, 12, 2))
sketch8.addConstraint(Sketcher.Constraint("Tangent", 12, 1, 13, 1))
sketch8.addConstraint(Sketcher.Constraint("Tangent", 13, 2, 14, 2))
sketch8.addConstraint(Sketcher.Constraint("Tangent", 14, 1, 15, 1))
sketch8.addConstraint(Sketcher.Constraint("Coincident", 15, 2, 16, 1))
sketch8.addConstraint(Sketcher.Constraint("Coincident", 16, 2, 17, 1))
sketch8.addConstraint(Sketcher.Constraint("Tangent", 17, 2, 0, 1))
sketch8.addConstraint(Sketcher.Constraint("Horizontal", 0))
sketch8.addConstraint(Sketcher.Constraint("Vertical", 2))
sketch8.addConstraint(Sketcher.Constraint("Horizontal", 3))
sketch8.addConstraint(Sketcher.Constraint("Vertical", 4))
sketch8.addConstraint(Sketcher.Constraint("Horizontal", 5))
sketch8.addConstraint(Sketcher.Constraint("Vertical", 6))
sketch8.addConstraint(Sketcher.Constraint("Horizontal", 8))
sketch8.addConstraint(Sketcher.Constraint("Vertical", 10))
sketch8.addConstraint(Sketcher.Constraint("Horizontal", 11))
sketch8.addConstraint(Sketcher.Constraint("Vertical", 13))
sketch8.addConstraint(Sketcher.Constraint("Horizontal", 15))
sketch8.addConstraint(Sketcher.Constraint("Vertical", 16))
sketch8.addConstraint(Sketcher.Constraint("Equal", 1, 9))
sketch8.addConstraint(Sketcher.Constraint("Equal", 7, 12))
sketch8.addConstraint(Sketcher.Constraint("Equal", 12, 14))
sketch8.addConstraint(Sketcher.Constraint("Equal", 9, 17))
sketch8.addConstraint(Sketcher.Constraint("Symmetric", 9, 3, 17, 3, -1))
sketch8.addConstraint(Sketcher.Constraint("Symmetric", 10, 2, 15, 2, -1))
sketch8.addConstraint(Sketcher.Constraint("Vertical", 7, 3, 12, 3))
sketch8.addConstraint(Sketcher.Constraint("Radius", 1, 17.0))
sketch8.addConstraint(Sketcher.Constraint("Radius", 7, 23.0))
sketch8.addConstraint(Sketcher.Constraint("DistanceY", 13, 1, 13, 2, 206.0))
sketch8.addConstraint(Sketcher.Constraint("DistanceY", 6, 1, 6, 2, 184.4))
sketch8.addConstraint(Sketcher.Constraint("DistanceX", 1, 3, -1, 1, 343.0))
sketch8.addConstraint(Sketcher.Constraint("DistanceY", -1, 1, 1, 3, 143.0))
sketch8.addConstraint(Sketcher.Constraint("DistanceX", 7, 3, -1, 1, 293.0))
sketch8.addConstraint(Sketcher.Constraint("DistanceY", 2, 2, 2, 1, 415.15))
sketch8.addConstraint(Sketcher.Constraint("DistanceX", 3, 1, 3, 2, 9.192))
sketch8.addConstraint(Sketcher.Constraint("DistanceX", 0, 2, 0, 1, 152.625012))
sketch8.addConstraint(Sketcher.Constraint("DistanceX", 11, 2, 11, 1, 118.178694))
sketch8.setExpression("Constraints[37]", "Params.sketch8_radius")
sketch8.setExpression("Constraints[38]", "Params.sketch8_radius2")
sketch8.setExpression("Constraints[39]", "Params.sketch8_height")
sketch8.setExpression("Constraints[40]", "Params.sketch8_height2")
sketch8.setExpression("Constraints[44]", "Params.sketch8_height3")
pocket4 = body.newObject("PartDesign::Pocket", "Pocket003")
pocket4.Profile = sketch8
pocket4.setExpression("Length", "Params.pocket4_length")
doc.recompute()

fillet5 = body.newObject("PartDesign::Fillet", "Fillet004")
fillet5.Base = (pocket4, edges_at(pocket4, [
    (-350.808, -367.4, 1),
    (-316, -367.4, 1),
    (-174.821, -149.862, 1),
    (-174.821, -126, 1),
    (-174.821, 126, 1),
    (-174.821, 149.862, 1),
    (-360, -272.15, 1),
]))
fillet5.setExpression("Radius", "Params.fillet5_radius")

doc.recompute()
